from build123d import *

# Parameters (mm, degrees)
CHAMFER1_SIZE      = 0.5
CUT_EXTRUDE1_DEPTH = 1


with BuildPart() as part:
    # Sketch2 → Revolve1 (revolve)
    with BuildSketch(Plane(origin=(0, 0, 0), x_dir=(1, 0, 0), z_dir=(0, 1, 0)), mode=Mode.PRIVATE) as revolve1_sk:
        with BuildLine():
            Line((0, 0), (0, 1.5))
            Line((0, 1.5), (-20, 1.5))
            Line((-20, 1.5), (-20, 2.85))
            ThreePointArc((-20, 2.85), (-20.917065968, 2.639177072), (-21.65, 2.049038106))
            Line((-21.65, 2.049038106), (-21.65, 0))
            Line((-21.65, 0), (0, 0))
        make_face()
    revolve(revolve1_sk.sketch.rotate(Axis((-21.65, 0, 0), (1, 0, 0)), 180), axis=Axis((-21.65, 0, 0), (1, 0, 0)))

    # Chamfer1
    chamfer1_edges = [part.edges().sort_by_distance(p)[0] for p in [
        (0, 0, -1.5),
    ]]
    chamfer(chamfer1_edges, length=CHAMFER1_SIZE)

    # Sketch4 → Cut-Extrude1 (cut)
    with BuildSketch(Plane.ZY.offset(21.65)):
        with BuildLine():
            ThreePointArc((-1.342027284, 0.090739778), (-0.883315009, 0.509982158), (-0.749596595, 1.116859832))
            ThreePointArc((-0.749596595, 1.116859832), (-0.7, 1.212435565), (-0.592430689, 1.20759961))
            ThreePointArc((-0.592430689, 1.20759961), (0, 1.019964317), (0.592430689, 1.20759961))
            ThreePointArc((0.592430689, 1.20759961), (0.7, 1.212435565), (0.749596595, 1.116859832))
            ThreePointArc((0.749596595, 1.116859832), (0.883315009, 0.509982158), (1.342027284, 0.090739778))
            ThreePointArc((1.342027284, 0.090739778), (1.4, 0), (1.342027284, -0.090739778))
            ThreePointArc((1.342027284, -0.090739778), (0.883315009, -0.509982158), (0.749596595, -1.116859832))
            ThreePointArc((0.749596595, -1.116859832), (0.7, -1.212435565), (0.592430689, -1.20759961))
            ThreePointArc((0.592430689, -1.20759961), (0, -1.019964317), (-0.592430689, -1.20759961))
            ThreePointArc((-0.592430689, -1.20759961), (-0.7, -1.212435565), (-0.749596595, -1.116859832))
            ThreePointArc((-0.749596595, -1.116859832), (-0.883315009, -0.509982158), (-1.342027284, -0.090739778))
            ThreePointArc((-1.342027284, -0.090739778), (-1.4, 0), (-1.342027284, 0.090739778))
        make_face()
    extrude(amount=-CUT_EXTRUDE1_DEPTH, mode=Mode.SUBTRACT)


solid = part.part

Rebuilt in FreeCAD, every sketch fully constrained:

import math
import FreeCAD as App
import Part
import Sketcher


def edges_at(feature, points):
    """Names of the edges that pass closest to the given points."""
    edges = feature.Shape.Edges
    near = lambda p: min(range(len(edges)), key=lambda i: edges[i].distToShape(Part.Vertex(*p))[0])
    return sorted({f"Edge{near(p) + 1}" for p in points})

doc = App.newDocument("Part")
body = doc.addObject("PartDesign::Body", "Body")

sketch1 = body.newObject("Sketcher::SketchObject", "Sketch")
sketch1.AttachmentSupport = (doc.getObject("XZ_Plane"), [""])
sketch1.MapMode = "FlatFace"
sketch1.addGeometry([
    Part.LineSegment(App.Vector(0, 0, 0), App.Vector(0, -1.5, 0)),
    Part.LineSegment(App.Vector(0, -1.5, 0), App.Vector(-20, -1.5, 0)),
    Part.LineSegment(App.Vector(-20, -1.5, 0), App.Vector(-20, -2.85, 0)),
    Part.ArcOfCircle(Part.Circle(App.Vector(-20, -0.75, 0), App.Vector(0, 0, 1), 2.1), math.radians(-141.786789), math.radians(-90)),
    Part.LineSegment(App.Vector(-21.65, -2.049038, 0), App.Vector(-21.65, 0, 0)),
    Part.LineSegment(App.Vector(-21.65, 0, 0), App.Vector(0, 0, 0)),
], False)
sketch1.addConstraint([
    Sketcher.Constraint("Coincident", 0, 2, 1, 1),
    Sketcher.Constraint("Coincident", 1, 2, 2, 1),
    Sketcher.Constraint("Coincident", 2, 2, 3, 2),
    Sketcher.Constraint("Coincident", 3, 1, 4, 1),
    Sketcher.Constraint("Coincident", 4, 2, 5, 1),
    Sketcher.Constraint("Coincident", 5, 2, 0, 1),
    Sketcher.Constraint("Vertical", 0),
    Sketcher.Constraint("Horizontal", 1),
    Sketcher.Constraint("Vertical", 2),
    Sketcher.Constraint("Vertical", 4),
    Sketcher.Constraint("Horizontal", 5),
    Sketcher.Constraint("Coincident", 5, 2, -1, 1),
    Sketcher.Constraint("Vertical", 3, 3, 1, 2),
    Sketcher.Constraint("Radius", 3, 2.1),
    Sketcher.Constraint("DistanceX", 1, 2, 1, 1, 20.0),
    Sketcher.Constraint("DistanceY", 0, 2, 0, 1, 1.5),
    Sketcher.Constraint("DistanceX", 5, 1, 5, 2, 21.65),
    Sketcher.Constraint("DistanceY", 2, 2, 2, 1, 1.35),
])
revolution = body.newObject("PartDesign::Revolution", "Revolution")
revolution.Profile = sketch1
revolution.ReferenceAxis = (sketch1, ["H_Axis"])
revolution.Angle = 360
doc.recompute()

chamfer = body.newObject("PartDesign::Chamfer", "Chamfer")
chamfer.Base = (revolution, edges_at(revolution, [(0, 0, -1.5)]))
chamfer.Size = 0.5

sketch2 = body.newObject("Sketcher::SketchObject", "Sketch001")
sketch2.AttachmentSupport = (doc.getObject("YZ_Plane"), [""])
sketch2.MapMode = "FlatFace"
sketch2.AttachmentOffset = App.Placement(App.Vector(0, 0, -21.65), App.Rotation())
sketch2.addGeometry([
    Part.ArcOfCircle(Part.Circle(App.Vector(1.024519, -1.774519, 0), App.Vector(0, 0, 1), 1.029074), math.radians(84.851814), math.radians(155.148185)),
    Part.ArcOfCircle(Part.Circle(App.Vector(0, -1.3, 0), App.Vector(0, 0, 1), 0.1), math.radians(-155.148186), math.radians(-24.851814)),
    Part.ArcOfCircle(Part.Circle(App.Vector(-1.024519, -1.774519, 0), App.Vector(0, 0, 1), 1.029074), math.radians(24.851815), math.radians(95.148186)),
    Part.ArcOfCircle(Part.Circle(App.Vector(-1.125833, -0.65, 0), App.Vector(0, 0, 1), 0.1), math.radians(144.851814), math.radians(275.148185)),
    Part.ArcOfCircle(Part.Circle(App.Vector(-2.049038, 0, 0), App.Vector(0, 0, 1), 1.029074), math.radians(-35.148185), math.radians(35.148185)),
    Part.ArcOfCircle(Part.Circle(App.Vector(-1.125833, 0.65, 0), App.Vector(0, 0, 1), 0.1), math.radians(84.851815), math.radians(215.148186)),
    Part.ArcOfCircle(Part.Circle(App.Vector(-1.024519, 1.774519, 0), App.Vector(0, 0, 1), 1.029074), math.radians(-95.148186), math.radians(-24.851815)),
    Part.ArcOfCircle(Part.Circle(App.Vector(0, 1.3, 0), App.Vector(0, 0, 1), 0.1), math.radians(24.851814), math.radians(155.148186)),
    Part.ArcOfCircle(Part.Circle(App.Vector(1.024519, 1.774519, 0), App.Vector(0, 0, 1), 1.029074), math.radians(-155.148185), math.radians(-84.851814)),
    Part.ArcOfCircle(Part.Circle(App.Vector(1.125833, 0.65, 0), App.Vector(0, 0, 1), 0.1), math.radians(-35.148186), math.radians(95.148185)),
    Part.ArcOfCircle(Part.Circle(App.Vector(2.049038, 0, 0), App.Vector(0, 0, 1), 1.029074), math.radians(144.851815), math.radians(215.148185)),
    Part.ArcOfCircle(Part.Circle(App.Vector(1.125833, -0.65, 0), App.Vector(0, 0, 1), 0.1), math.radians(-95.148185), math.radians(35.148186)),
], False)
sketch2.addConstraint([
    Sketcher.Constraint("Tangent", 0, 2, 1, 2),
    Sketcher.Constraint("Tangent", 1, 1, 2, 1),
    Sketcher.Constraint("Tangent", 2, 2, 3, 2),
    Sketcher.Constraint("Tangent", 3, 1, 4, 1),
    Sketcher.Constraint("Tangent", 4, 2, 5, 2),
    Sketcher.Constraint("Tangent", 5, 1, 6, 1),
    Sketcher.Constraint("Tangent", 6, 2, 7, 2),
    Sketcher.Constraint("Tangent", 7, 1, 8, 1),
    Sketcher.Constraint("Tangent", 8, 2, 9, 2),
    Sketcher.Constraint("Tangent", 9, 1, 10, 1),
    Sketcher.Constraint("Tangent", 10, 2, 11, 2),
    Sketcher.Constraint("Tangent", 11, 1, 0, 1),
    Sketcher.Constraint("Equal", 0, 2),
    Sketcher.Constraint("Equal", 1, 3),
    Sketcher.Constraint("Equal", 2, 4),
    Sketcher.Constraint("Equal", 3, 5),
    Sketcher.Constraint("Equal", 4, 6),
    Sketcher.Constraint("Equal", 5, 7),
    Sketcher.Constraint("Equal", 6, 8),
    Sketcher.Constraint("Equal", 7, 9),
    Sketcher.Constraint("Equal", 8, 10),
    Sketcher.Constraint("Equal", 9, 11),
    Sketcher.Constraint("Symmetric", 0, 3, 6, 3, -1, 1),
    Sketcher.Constraint("Symmetric", 2, 3, 8, 3, -1, 1),
    Sketcher.Constraint("Symmetric", 4, 3, 10, 3, -1, 1),
    Sketcher.Constraint("Symmetric", 0, 3, 2, 3, -2),
    Sketcher.Constraint("PointOnObject", 4, 3, -1),
    Sketcher.Constraint("Radius", 1, 0.1),
    Sketcher.Constraint("DistanceY", 1, 3, -1, 1, 1.3),
    Sketcher.Constraint("DistanceY", 3, 3, 5, 3, 1.3),
    Sketcher.Constraint("Radius", 0, 1.029074),
    Sketcher.Constraint("DistanceX", 3, 1, -1, 1, 1.2076),
])
pocket1 = body.newObject("PartDesign::Pocket", "Pocket")
pocket1.Profile = sketch2
pocket1.Length = 1
pocket1.Reversed = True

doc.recompute()
